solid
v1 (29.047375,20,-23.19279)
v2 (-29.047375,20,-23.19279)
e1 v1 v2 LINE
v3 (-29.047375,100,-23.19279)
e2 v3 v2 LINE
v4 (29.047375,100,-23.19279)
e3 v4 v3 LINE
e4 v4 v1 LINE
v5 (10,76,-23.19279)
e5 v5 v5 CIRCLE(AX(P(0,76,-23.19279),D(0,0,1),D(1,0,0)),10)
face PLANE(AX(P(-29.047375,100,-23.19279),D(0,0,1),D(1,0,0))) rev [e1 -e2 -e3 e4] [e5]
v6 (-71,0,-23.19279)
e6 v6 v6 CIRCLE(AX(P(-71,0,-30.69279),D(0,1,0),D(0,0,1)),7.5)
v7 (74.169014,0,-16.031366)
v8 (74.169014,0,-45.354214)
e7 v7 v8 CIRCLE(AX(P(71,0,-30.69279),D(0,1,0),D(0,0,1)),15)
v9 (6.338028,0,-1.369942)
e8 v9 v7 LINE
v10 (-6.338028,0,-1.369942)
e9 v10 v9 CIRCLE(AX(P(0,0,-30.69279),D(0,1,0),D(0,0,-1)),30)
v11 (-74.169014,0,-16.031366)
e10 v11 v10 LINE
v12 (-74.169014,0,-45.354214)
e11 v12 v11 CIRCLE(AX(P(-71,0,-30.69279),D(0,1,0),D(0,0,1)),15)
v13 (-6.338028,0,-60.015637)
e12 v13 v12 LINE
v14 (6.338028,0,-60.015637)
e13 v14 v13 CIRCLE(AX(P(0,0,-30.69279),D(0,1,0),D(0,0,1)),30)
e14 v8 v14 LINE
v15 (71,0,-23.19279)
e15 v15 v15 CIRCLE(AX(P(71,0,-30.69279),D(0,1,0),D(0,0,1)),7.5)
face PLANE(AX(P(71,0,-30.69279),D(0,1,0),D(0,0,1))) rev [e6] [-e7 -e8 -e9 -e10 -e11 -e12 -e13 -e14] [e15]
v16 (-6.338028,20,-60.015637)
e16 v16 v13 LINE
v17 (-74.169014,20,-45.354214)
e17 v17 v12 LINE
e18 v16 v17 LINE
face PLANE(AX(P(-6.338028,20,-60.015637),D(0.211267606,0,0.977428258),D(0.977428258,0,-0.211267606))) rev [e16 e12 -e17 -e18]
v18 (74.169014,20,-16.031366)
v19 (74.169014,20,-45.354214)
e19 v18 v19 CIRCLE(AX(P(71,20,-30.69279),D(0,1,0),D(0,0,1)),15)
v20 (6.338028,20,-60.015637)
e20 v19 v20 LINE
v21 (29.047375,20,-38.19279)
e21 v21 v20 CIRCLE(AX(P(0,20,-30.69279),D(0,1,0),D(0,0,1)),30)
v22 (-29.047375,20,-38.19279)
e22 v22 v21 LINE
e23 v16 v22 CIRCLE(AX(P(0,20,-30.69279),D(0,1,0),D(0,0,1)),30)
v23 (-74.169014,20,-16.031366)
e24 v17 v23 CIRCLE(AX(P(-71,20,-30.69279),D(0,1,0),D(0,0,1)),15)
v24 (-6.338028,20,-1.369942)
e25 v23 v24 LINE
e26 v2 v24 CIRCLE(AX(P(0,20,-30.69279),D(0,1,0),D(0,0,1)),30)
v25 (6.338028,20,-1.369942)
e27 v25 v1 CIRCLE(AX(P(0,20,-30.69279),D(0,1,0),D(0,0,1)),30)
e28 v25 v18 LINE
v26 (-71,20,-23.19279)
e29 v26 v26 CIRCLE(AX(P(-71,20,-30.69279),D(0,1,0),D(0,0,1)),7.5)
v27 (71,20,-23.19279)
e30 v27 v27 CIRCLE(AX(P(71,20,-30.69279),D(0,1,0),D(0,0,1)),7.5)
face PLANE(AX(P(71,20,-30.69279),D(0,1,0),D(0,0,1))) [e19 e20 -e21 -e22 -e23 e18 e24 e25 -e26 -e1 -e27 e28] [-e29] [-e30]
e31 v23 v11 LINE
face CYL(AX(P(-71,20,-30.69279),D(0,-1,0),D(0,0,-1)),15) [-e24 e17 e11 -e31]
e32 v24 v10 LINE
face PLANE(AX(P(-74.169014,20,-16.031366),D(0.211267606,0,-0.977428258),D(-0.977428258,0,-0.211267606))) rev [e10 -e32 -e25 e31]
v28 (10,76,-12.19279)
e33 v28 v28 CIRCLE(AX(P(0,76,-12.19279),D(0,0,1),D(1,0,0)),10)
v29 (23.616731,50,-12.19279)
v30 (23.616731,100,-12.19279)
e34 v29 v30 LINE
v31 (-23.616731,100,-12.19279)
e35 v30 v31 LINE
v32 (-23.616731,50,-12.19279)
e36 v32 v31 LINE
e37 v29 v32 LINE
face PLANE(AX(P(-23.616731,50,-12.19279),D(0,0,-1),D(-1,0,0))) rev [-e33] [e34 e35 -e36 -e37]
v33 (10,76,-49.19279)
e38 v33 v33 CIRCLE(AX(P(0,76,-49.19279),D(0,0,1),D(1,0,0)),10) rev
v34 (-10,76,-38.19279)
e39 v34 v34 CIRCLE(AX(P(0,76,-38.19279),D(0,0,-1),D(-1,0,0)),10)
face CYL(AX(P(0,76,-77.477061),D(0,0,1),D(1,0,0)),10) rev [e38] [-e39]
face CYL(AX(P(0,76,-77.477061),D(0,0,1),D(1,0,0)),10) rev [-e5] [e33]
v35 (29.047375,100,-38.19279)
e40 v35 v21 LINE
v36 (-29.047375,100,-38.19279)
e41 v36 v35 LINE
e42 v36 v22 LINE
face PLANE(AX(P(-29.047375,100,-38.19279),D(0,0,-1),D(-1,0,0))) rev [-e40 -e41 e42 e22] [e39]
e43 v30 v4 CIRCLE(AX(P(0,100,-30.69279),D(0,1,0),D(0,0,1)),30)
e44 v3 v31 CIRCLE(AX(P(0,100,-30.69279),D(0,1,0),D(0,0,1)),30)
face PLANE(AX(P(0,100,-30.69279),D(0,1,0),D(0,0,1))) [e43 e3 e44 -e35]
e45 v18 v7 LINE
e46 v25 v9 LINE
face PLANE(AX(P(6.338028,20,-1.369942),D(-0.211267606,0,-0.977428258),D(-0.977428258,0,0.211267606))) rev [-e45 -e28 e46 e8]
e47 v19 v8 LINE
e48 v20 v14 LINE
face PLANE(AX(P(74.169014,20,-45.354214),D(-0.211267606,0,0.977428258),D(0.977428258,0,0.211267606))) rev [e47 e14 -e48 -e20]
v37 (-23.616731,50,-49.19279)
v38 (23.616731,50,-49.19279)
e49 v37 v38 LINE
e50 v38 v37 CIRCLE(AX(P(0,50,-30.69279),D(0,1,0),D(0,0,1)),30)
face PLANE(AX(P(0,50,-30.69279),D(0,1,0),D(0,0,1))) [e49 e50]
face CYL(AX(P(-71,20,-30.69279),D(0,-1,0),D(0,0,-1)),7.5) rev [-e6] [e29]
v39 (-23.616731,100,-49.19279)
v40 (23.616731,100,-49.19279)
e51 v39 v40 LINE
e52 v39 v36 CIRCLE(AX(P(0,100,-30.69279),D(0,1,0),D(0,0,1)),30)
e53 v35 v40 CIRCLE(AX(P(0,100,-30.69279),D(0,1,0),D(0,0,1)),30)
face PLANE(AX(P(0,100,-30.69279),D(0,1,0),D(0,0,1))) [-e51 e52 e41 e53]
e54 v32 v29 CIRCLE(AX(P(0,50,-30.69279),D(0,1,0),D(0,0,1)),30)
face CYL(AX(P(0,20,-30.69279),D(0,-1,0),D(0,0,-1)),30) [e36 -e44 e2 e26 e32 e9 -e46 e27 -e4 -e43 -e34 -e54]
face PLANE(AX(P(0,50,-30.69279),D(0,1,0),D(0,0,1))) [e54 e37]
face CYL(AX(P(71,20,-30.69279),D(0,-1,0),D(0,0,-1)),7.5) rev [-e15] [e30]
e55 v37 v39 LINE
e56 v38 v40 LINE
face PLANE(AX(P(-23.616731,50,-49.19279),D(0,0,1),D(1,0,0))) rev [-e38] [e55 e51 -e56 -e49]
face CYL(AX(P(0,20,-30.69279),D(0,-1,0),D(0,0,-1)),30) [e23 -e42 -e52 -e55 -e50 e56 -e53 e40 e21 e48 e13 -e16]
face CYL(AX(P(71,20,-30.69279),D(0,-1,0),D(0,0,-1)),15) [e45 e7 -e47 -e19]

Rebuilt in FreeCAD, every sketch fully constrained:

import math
import FreeCAD as App
import Part
import Sketcher

V = App.Vector
Q = App.Units.Quantity

doc = App.newDocument("Part")
body = doc.addObject("PartDesign::Body", "Body")

# Sketch on XZ plane
sketch1 = body.newObject("Sketcher::SketchObject", "Sketch")
sketch1.AttachmentSupport = (doc.getObject("XZ_Plane"), [""])
sketch1.MapMode = "FlatFace"
sketch1.addGeometry([
    Part.LineSegment(V(6.338028, -1.369942, 0), V(74.169014, -16.031366, 0)),  # 0
    Part.ArcOfCircle(Part.Circle(V(71, -30.69279, 0), V(0, 0, 1), 15), math.radians(-77.803352), math.radians(77.803352)),  # 1
    Part.LineSegment(V(74.169014, -45.354214, 0), V(6.338028, -60.015637, 0)),  # 2
    Part.ArcOfCircle(Part.Circle(V(0, -30.69279, 0), V(0, 0, 1), 30), math.radians(-102.196648), math.radians(-77.803352)),  # 3
    Part.LineSegment(V(-6.338028, -60.015637, 0), V(-74.169014, -45.354214, 0)),  # 4
    Part.ArcOfCircle(Part.Circle(V(-71, -30.69279, 0), V(0, 0, 1), 15), math.radians(102.196648), math.radians(257.803352)),  # 5
    Part.LineSegment(V(-74.169014, -16.031366, 0), V(-6.338028, -1.369942, 0)),  # 6
    Part.ArcOfCircle(Part.Circle(V(0, -30.69279, 0), V(0, 0, 1), 30), math.radians(77.803352), math.radians(102.196648)),  # 7
    Part.Circle(V(-71, -30.69279, 0), V(0, 0, 1), 7.5),  # 8
    Part.Circle(V(71, -30.69279, 0), V(0, 0, 1), 7.5),  # 9
], False)
sketch1.addConstraint([
    Sketcher.Constraint("Tangent", 0, 2, 1, 2),
    Sketcher.Constraint("Tangent", 1, 1, 2, 1),
    Sketcher.Constraint("Tangent", 2, 2, 3, 2),
    Sketcher.Constraint("Tangent", 3, 1, 4, 1),
    Sketcher.Constraint("Tangent", 4, 2, 5, 2),
    Sketcher.Constraint("Tangent", 5, 1, 6, 1),
    Sketcher.Constraint("Tangent", 6, 2, 7, 2),
    Sketcher.Constraint("Tangent", 7, 1, 0, 1),
    Sketcher.Constraint("Coincident", 7, 3, 3, 3),
    Sketcher.Constraint("Coincident", 8, 3, 5, 3),
    Sketcher.Constraint("Coincident", 9, 3, 1, 3),
    Sketcher.Constraint("Equal", 1, 5),
    Sketcher.Constraint("Equal", 3, 7),
    Sketcher.Constraint("Equal", 8, 9),
    Sketcher.Constraint("Symmetric", 1, 3, 5, 3, -2),
    Sketcher.Constraint("PointOnObject", 3, 3, -2),
    Sketcher.Constraint("Parallel", 0, 4),
    Sketcher.Constraint("Diameter", 8, Q("15 mm")),
    Sketcher.Constraint("Radius", 1, Q("15 mm")),
    Sketcher.Constraint("Radius", 3, Q("30 mm")),
    Sketcher.Constraint("DistanceX", -1, 1, 1, 3, Q("71 mm")),
    Sketcher.Constraint("DistanceY", 1, 3, -1, 1, Q("30.69279 mm")),
])
pad1 = body.newObject("PartDesign::Pad", "Pad")
pad1.Profile = sketch1
pad1.Length = 20
pad1.Reversed = True

# Sketch on XZ plane
sketch2 = body.newObject("Sketcher::SketchObject", "Sketch001")
sketch2.AttachmentSupport = (doc.getObject("XZ_Plane"), [""])
sketch2.MapMode = "FlatFace"
sketch2.AttachmentOffset = App.Placement(V(0, 0, -20), App.Rotation())
sketch2.addGeometry([
    Part.LineSegment(V(29.047375, -23.19279, 0), V(-29.047375, -23.19279, 0)),
    Part.ArcOfCircle(Part.Circle(V(0, -30.69279, 0), V(0, 0, 1), 30), math.radians(14.477512), math.radians(165.522488)),
    Part.LineSegment(V(-29.047375, -38.19279, 0), V(29.047375, -38.19279, 0)),
    Part.ArcOfCircle(Part.Circle(V(0, -30.69279, 0), V(0, 0, 1), 30), math.radians(-165.522488), math.radians(-14.477512)),
], False)
sketch2.addConstraint([
    Sketcher.Constraint("Coincident", 0, 1, 1, 1),
    Sketcher.Constraint("Coincident", 1, 2, 0, 2),
    Sketcher.Constraint("Coincident", 2, 1, 3, 1),
    Sketcher.Constraint("Coincident", 3, 2, 2, 2),
    Sketcher.Constraint("Horizontal", 0),
    Sketcher.Constraint("Horizontal", 2),
    Sketcher.Constraint("Coincident", 3, 3, 1, 3),
    Sketcher.Constraint("Equal", 1, 3),
    Sketcher.Constraint("PointOnObject", 1, 3, -2),
    Sketcher.Constraint("Vertical", 1, 2, 2, 1),
    Sketcher.Constraint("Radius", 1, Q("30 mm")),
    Sketcher.Constraint("DistanceY", 2, 1, 1, 2, Q("15 mm")),
    Sketcher.Constraint("DistanceY", 1, 3, -1, 1, Q("30.69279 mm")),
])
pad2 = body.newObject("PartDesign::Pad", "Pad001")
pad2.Profile = sketch2
pad2.Length = 80
pad2.Reversed = True

# Sketch on XZ plane
sketch3 = body.newObject("Sketcher::SketchObject", "Sketch002")
sketch3.AttachmentSupport = (doc.getObject("XZ_Plane"), [""])
sketch3.MapMode = "FlatFace"
sketch3.AttachmentOffset = App.Placement(V(0, 0, -100), App.Rotation())
sketch3.addGeometry([
    Part.LineSegment(V(-23.616731, -49.19279, 0), V(23.616731, -49.19279, 0)),
    Part.ArcOfCircle(Part.Circle(V(0, -30.69279, 0), V(0, 0, 1), 30), math.radians(-141.926877), math.radians(-38.073123)),
    Part.LineSegment(V(23.616731, -12.19279, 0), V(-23.616731, -12.19279, 0)),
    Part.ArcOfCircle(Part.Circle(V(0, -30.69279, 0), V(0, 0, 1), 30), math.radians(38.073123), math.radians(141.926877)),
], False)
sketch3.addConstraint([
    Sketcher.Constraint("Coincident", 0, 1, 1, 1),
    Sketcher.Constraint("Coincident", 1, 2, 0, 2),
    Sketcher.Constraint("Coincident", 2, 1, 3, 1),
    Sketcher.Constraint("Coincident", 3, 2, 2, 2),
    Sketcher.Constraint("Horizontal", 0),
    Sketcher.Constraint("Horizontal", 2),
    Sketcher.Constraint("Coincident", 3, 3, 1, 3),
    Sketcher.Constraint("Equal", 1, 3),
    Sketcher.Constraint("PointOnObject", 1, 3, -2),
    Sketcher.Constraint("Vertical", 1, 2, 2, 1),
    Sketcher.Constraint("Radius", 1, Q("30 mm")),
    Sketcher.Constraint("DistanceY", 1, 2, 2, 1, Q("37 mm")),
    Sketcher.Constraint("DistanceY", 1, 3, -1, 1, Q("30.69279 mm")),
])
pocket1 = body.newObject("PartDesign::Pocket", "Pocket")
pocket1.Profile = sketch3
pocket1.Length = 50
pocket1.Reversed = True

# Sketch on XY plane
sketch4 = body.newObject("Sketcher::SketchObject", "Sketch003")
sketch4.AttachmentSupport = (doc.getObject("XY_Plane"), [""])
sketch4.MapMode = "FlatFace"
sketch4.AttachmentOffset = App.Placement(V(0, 0, -12.19279), App.Rotation())
sketch4.addGeometry(Part.Circle(V(0, 76, 0), V(0, 0, 1), 10), False)
sketch4.addConstraint([
    Sketcher.Constraint("PointOnObject", 0, 3, -2),
    Sketcher.Constraint("Diameter", 0, Q("20 mm")),
    Sketcher.Constraint("DistanceY", -1, 1, 0, 3, Q("76 mm")),
])
pocket2 = body.newObject("PartDesign::Pocket", "Pocket001")
pocket2.Profile = sketch4
pocket2.Length = 37

doc.recompute()
